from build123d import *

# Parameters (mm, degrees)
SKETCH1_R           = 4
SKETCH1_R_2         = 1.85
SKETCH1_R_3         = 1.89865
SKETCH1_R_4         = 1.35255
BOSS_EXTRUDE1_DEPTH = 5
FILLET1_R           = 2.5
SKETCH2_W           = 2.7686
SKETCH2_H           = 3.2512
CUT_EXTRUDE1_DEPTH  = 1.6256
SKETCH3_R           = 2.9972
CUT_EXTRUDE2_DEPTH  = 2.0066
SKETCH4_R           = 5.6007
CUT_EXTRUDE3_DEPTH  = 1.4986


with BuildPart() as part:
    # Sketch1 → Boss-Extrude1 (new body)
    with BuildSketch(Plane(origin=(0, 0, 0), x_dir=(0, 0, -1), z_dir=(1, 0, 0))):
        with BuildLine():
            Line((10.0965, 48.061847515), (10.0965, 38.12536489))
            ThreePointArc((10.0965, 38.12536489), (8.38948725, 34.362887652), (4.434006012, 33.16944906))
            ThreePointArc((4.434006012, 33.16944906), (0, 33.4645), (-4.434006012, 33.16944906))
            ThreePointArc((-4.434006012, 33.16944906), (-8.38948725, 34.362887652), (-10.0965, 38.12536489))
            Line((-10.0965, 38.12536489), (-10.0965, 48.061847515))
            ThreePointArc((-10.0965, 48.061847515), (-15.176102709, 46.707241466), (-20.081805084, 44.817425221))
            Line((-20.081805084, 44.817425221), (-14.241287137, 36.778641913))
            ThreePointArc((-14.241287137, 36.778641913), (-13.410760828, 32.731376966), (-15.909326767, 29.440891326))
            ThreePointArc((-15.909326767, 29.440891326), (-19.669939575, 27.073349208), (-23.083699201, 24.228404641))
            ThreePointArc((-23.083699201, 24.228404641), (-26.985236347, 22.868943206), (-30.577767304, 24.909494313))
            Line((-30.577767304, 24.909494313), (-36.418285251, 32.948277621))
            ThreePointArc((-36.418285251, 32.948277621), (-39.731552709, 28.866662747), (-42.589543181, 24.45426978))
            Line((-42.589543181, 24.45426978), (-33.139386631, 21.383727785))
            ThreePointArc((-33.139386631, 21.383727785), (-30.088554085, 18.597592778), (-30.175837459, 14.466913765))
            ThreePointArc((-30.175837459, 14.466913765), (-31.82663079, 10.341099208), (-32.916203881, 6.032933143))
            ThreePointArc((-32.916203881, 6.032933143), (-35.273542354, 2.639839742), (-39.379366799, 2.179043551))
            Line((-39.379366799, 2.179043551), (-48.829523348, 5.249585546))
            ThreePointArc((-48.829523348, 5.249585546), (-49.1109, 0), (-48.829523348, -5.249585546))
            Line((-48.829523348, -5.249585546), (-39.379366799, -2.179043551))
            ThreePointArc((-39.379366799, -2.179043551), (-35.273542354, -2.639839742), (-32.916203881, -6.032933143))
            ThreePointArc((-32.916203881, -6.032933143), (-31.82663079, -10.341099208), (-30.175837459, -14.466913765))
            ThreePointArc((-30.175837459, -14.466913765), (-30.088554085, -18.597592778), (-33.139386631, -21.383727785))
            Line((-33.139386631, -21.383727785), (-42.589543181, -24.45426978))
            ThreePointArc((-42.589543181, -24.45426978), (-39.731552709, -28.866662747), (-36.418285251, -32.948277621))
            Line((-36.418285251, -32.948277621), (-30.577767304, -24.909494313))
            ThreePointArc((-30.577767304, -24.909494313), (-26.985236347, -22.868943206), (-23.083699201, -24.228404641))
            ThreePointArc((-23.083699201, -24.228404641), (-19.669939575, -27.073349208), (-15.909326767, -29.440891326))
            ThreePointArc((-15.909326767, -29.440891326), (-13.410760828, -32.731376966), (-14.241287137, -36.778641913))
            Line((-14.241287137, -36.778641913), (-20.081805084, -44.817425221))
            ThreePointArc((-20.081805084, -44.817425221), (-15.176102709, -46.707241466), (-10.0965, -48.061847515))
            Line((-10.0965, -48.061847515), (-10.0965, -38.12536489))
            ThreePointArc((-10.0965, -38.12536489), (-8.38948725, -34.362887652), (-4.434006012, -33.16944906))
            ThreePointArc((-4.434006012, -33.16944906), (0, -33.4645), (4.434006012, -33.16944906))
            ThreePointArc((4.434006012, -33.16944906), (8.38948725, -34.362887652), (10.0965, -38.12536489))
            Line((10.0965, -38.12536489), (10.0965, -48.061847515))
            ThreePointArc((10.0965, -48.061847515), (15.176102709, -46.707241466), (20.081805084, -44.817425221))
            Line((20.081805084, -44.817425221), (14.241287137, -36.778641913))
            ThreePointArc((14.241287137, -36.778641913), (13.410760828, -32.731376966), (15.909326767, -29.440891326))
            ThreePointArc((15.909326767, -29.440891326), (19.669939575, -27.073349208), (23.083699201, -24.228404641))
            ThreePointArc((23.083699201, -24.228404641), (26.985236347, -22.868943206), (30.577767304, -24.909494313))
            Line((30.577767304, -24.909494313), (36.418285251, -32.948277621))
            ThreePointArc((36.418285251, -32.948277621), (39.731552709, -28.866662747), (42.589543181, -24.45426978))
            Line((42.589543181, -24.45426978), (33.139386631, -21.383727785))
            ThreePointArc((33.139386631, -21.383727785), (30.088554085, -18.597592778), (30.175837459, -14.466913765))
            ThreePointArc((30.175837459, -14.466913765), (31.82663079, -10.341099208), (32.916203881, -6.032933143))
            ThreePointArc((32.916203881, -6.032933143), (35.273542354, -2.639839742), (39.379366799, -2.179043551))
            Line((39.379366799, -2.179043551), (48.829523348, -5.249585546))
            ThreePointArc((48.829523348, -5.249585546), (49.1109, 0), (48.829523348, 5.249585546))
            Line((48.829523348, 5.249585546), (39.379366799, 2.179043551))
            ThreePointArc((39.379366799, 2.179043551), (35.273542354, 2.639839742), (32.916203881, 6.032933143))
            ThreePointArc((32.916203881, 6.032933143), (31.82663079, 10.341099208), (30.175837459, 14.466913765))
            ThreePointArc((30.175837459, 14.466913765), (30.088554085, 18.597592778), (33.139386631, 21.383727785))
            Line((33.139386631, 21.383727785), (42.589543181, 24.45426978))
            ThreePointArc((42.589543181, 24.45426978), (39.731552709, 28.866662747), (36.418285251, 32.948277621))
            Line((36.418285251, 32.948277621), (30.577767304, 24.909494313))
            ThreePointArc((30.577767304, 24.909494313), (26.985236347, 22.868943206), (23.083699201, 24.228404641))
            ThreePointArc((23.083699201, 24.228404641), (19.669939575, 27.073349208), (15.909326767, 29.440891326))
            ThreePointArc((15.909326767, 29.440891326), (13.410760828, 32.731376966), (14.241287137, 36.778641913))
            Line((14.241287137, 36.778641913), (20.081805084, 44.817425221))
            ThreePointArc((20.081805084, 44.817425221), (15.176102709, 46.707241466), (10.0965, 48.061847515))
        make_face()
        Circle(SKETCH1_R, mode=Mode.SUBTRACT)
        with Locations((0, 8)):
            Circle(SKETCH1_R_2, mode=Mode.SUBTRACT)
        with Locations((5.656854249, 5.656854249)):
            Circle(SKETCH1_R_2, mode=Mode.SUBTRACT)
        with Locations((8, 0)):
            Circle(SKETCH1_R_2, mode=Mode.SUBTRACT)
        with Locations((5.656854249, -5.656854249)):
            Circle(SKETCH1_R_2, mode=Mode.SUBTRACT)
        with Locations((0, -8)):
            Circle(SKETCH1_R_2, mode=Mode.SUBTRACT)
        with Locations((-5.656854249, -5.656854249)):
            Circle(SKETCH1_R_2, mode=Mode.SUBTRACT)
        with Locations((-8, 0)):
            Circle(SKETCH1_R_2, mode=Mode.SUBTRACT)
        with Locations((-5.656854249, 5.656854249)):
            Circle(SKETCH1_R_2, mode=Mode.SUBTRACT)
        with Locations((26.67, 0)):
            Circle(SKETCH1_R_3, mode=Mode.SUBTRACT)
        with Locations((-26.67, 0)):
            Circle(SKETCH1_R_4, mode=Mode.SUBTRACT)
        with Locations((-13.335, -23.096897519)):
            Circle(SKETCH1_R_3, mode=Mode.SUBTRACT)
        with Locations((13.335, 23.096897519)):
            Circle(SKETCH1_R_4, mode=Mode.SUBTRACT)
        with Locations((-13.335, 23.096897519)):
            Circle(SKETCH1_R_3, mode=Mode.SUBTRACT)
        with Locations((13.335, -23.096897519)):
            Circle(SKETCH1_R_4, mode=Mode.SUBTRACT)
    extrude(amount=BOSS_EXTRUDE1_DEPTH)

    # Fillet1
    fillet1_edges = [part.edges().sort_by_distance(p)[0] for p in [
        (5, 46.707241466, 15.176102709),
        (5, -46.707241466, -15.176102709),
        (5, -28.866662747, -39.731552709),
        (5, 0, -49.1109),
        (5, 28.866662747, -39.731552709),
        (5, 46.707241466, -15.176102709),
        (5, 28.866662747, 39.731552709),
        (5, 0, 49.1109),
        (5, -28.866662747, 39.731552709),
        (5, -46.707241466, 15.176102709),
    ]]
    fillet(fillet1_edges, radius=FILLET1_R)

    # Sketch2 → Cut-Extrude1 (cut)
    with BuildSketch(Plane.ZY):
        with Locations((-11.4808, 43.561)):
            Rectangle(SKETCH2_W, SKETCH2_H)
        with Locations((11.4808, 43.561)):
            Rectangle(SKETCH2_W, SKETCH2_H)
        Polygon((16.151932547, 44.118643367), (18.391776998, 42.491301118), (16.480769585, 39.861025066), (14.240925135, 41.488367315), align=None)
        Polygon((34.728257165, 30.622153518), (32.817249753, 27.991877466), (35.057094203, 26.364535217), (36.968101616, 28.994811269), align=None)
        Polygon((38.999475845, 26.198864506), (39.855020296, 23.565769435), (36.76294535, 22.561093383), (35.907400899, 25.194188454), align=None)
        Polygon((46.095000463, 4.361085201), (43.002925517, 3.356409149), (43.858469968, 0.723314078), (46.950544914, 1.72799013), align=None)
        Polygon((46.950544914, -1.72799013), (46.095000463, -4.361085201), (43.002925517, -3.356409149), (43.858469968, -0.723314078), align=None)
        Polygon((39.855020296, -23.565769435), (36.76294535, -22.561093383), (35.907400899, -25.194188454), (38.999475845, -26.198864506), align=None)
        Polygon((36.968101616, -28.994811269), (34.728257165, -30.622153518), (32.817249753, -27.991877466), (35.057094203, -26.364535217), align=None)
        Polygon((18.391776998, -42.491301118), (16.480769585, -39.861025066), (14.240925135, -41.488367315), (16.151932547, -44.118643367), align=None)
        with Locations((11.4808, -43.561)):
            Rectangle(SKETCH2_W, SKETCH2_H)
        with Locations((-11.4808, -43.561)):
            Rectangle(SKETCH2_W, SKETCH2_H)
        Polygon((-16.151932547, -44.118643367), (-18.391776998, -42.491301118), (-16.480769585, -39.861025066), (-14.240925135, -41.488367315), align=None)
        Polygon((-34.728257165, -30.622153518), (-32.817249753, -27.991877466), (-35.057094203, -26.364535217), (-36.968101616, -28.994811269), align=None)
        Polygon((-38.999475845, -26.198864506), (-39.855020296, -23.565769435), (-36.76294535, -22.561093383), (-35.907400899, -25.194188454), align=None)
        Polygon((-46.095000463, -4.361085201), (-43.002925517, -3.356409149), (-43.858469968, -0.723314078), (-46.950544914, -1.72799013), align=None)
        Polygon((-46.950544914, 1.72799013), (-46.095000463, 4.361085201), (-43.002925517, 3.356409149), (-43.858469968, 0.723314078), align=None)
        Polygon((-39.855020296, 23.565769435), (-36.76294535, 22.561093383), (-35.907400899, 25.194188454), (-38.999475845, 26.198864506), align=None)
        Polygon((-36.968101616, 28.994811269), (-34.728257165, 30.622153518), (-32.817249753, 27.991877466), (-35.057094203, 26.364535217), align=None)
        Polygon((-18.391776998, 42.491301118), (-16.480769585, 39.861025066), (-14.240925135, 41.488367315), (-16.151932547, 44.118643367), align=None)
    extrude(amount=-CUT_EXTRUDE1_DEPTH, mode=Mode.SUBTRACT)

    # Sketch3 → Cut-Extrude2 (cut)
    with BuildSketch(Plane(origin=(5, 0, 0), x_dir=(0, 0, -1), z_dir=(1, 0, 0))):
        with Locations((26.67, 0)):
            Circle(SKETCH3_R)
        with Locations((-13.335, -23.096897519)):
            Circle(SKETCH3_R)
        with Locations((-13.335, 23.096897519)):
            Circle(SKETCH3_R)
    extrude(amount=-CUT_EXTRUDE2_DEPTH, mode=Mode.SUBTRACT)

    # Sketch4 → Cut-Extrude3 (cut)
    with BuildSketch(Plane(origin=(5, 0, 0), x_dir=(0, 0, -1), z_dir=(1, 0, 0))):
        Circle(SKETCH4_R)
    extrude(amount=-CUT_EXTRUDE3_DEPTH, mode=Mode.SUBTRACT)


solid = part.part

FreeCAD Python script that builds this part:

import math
import FreeCAD as App
import Part
import Sketcher

V = App.Vector
Q = App.Units.Quantity


def edges_at(feature, points):
    """Names of the edges that pass closest to the given points."""
    edges = feature.Shape.Edges
    near = lambda p: min(range(len(edges)), key=lambda i: edges[i].distToShape(Part.Vertex(*p))[0])
    return sorted({f"Edge{near(p) + 1}" for p in points})

doc = App.newDocument("Part")
body = doc.addObject("PartDesign::Body", "Body")

sketch1 = doc.addObject("Sketcher::SketchObject", "Sketch")
body.addObject(sketch1)
sketch1.AttachmentSupport = (doc.YZ_Plane, [""])
sketch1.MapMode = "FlatFace"
sketch1.addGeometry([
    Part.LineSegment(V(48.1, -10.1, 0), V(38.1, -10.1, 0)),
    Part.ArcOfCircle(Part.Circle(V(38.1, -5.1, 0), V(0, 0, 1), 5), math.radians(172), math.radians(270)),
    Part.ArcOfCircle(Part.Circle(V(0, 0, 0), V(0, 0, 1), 33.5), math.radians(-7.61), math.radians(7.61)),
    Part.ArcOfCircle(Part.Circle(V(38.1, 5.1, 0), V(0, 0, 1), 5), math.radians(90), math.radians(188)),
    Part.LineSegment(V(38.1, 10.1, 0), V(48.1, 10.1, 0)),
    Part.ArcOfCircle(Part.Circle(V(0, 0, 0), V(0, 0, 1), 49.1), math.radians(11.86), math.radians(24.14)),
    Part.LineSegment(V(44.8, 20.1, 0), V(36.8, 14.2, 0)),
    Part.ArcOfCircle(Part.Circle(V(33.8, 18.3, 0), V(0, 0, 1), 5), math.radians(-152), math.radians(-54)),
    Part.ArcOfCircle(Part.Circle(V(0, 0, 0), V(0, 0, 1), 33.5), math.radians(28.39), math.radians(43.61)),
    Part.ArcOfCircle(Part.Circle(V(27.8, 26.5, 0), V(0, 0, 1), 5), math.radians(126), math.radians(224)),
    Part.LineSegment(V(24.9, 30.6, 0), V(32.9, 36.4, 0)),
    Part.ArcOfCircle(Part.Circle(V(0, 0, 0), V(0, 0, 1), 49.1), math.radians(47.86), math.radians(60.14)),
    Part.LineSegment(V(24.5, 42.6, 0), V(21.4, 33.1, 0)),
    Part.ArcOfCircle(Part.Circle(V(16.6, 34.7, 0), V(0, 0, 1), 5), math.radians(-116), math.radians(-18)),
    Part.ArcOfCircle(Part.Circle(V(0, 0, 0), V(0, 0, 1), 33.5), math.radians(64.39), math.radians(79.61)),
    Part.ArcOfCircle(Part.Circle(V(6.9, 37.8, 0), V(0, 0, 1), 5), math.radians(162), math.radians(260)),
    Part.LineSegment(V(2.2, 39.4, 0), V(5.2, 48.8, 0)),
    Part.ArcOfCircle(Part.Circle(V(0, 0, 0), V(0, 0, 1), 49.1), math.radians(83.86), math.radians(96.14)),
    Part.LineSegment(V(-5.2, 48.8, 0), V(-2.2, 39.4, 0)),
    Part.ArcOfCircle(Part.Circle(V(-6.9, 37.8, 0), V(0, 0, 1), 5), math.radians(-80), math.radians(18)),
    Part.ArcOfCircle(Part.Circle(V(0, 0, 0), V(0, 0, 1), 33.5), math.radians(100.39), math.radians(115.61)),
    Part.ArcOfCircle(Part.Circle(V(-16.6, 34.7, 0), V(0, 0, 1), 5), math.radians(-162), math.radians(-64)),
    Part.LineSegment(V(-21.4, 33.1, 0), V(-24.5, 42.6, 0)),
    Part.ArcOfCircle(Part.Circle(V(0, 0, 0), V(0, 0, 1), 49.1), math.radians(119.86), math.radians(132.14)),
    Part.LineSegment(V(-32.9, 36.4, 0), V(-24.9, 30.6, 0)),
    Part.ArcOfCircle(Part.Circle(V(-27.8, 26.5, 0), V(0, 0, 1), 5), math.radians(-44), math.radians(54)),
    Part.ArcOfCircle(Part.Circle(V(0, 0, 0), V(0, 0, 1), 33.5), math.radians(136.39), math.radians(151.61)),
    Part.ArcOfCircle(Part.Circle(V(-33.8, 18.3, 0), V(0, 0, 1), 5), math.radians(-126), math.radians(-28)),
    Part.LineSegment(V(-36.8, 14.2, 0), V(-44.8, 20.1, 0)),
    Part.ArcOfCircle(Part.Circle(V(0, 0, 0), V(0, 0, 1), 49.1), math.radians(155.86), math.radians(168.14)),
    Part.LineSegment(V(-48.1, 10.1, 0), V(-38.1, 10.1, 0)),
    Part.ArcOfCircle(Part.Circle(V(-38.1, 5.1, 0), V(0, 0, 1), 5), math.radians(-8), math.radians(90)),
    Part.ArcOfCircle(Part.Circle(V(0, 0, 0), V(0, 0, 1), 33.5), math.radians(172.39), math.radians(187.61)),
    Part.ArcOfCircle(Part.Circle(V(-38.1, -5.1, 0), V(0, 0, 1), 5), math.radians(-90), math.radians(8)),
    Part.LineSegment(V(-38.1, -10.1, 0), V(-48.1, -10.1, 0)),
    Part.ArcOfCircle(Part.Circle(V(0, 0, 0), V(0, 0, 1), 49.1), math.radians(-168.14), math.radians(-155.86)),
    Part.LineSegment(V(-44.8, -20.1, 0), V(-36.8, -14.2, 0)),
    Part.ArcOfCircle(Part.Circle(V(-33.8, -18.3, 0), V(0, 0, 1), 5), math.radians(28), math.radians(126)),
    Part.ArcOfCircle(Part.Circle(V(0, 0, 0), V(0, 0, 1), 33.5), math.radians(-151.61), math.radians(-136.39)),
    Part.ArcOfCircle(Part.Circle(V(-27.8, -26.5, 0), V(0, 0, 1), 5), math.radians(-54), math.radians(44)),
    Part.LineSegment(V(-24.9, -30.6, 0), V(-32.9, -36.4, 0)),
    Part.ArcOfCircle(Part.Circle(V(0, 0, 0), V(0, 0, 1), 49.1), math.radians(-132.14), math.radians(-119.86)),
    Part.LineSegment(V(-24.5, -42.6, 0), V(-21.4, -33.1, 0)),
    Part.ArcOfCircle(Part.Circle(V(-16.6, -34.7, 0), V(0, 0, 1), 5), math.radians(64), math.radians(162)),
    Part.ArcOfCircle(Part.Circle(V(0, 0, 0), V(0, 0, 1), 33.5), math.radians(-115.61), math.radians(-100.39)),
    Part.ArcOfCircle(Part.Circle(V(-6.9, -37.8, 0), V(0, 0, 1), 5), math.radians(-18), math.radians(80)),
    Part.LineSegment(V(-2.2, -39.4, 0), V(-5.2, -48.8, 0)),
    Part.ArcOfCircle(Part.Circle(V(0, 0, 0), V(0, 0, 1), 49.1), math.radians(-96.14), math.radians(-83.86)),
    Part.LineSegment(V(5.2, -48.8, 0), V(2.2, -39.4, 0)),
    Part.ArcOfCircle(Part.Circle(V(6.9, -37.8, 0), V(0, 0, 1), 5), math.radians(100), math.radians(198)),
    Part.ArcOfCircle(Part.Circle(V(0, 0, 0), V(0, 0, 1), 33.5), math.radians(-79.61), math.radians(-64.39)),
    Part.ArcOfCircle(Part.Circle(V(16.6, -34.7, 0), V(0, 0, 1), 5), math.radians(18), math.radians(116)),
    Part.LineSegment(V(21.4, -33.1, 0), V(24.5, -42.6, 0)),
    Part.ArcOfCircle(Part.Circle(V(0, 0, 0), V(0, 0, 1), 49.1), math.radians(-60.14), math.radians(-47.86)),
    Part.LineSegment(V(32.9, -36.4, 0), V(24.9, -30.6, 0)),
    Part.ArcOfCircle(Part.Circle(V(27.8, -26.5, 0), V(0, 0, 1), 5), math.radians(136), math.radians(234)),
    Part.ArcOfCircle(Part.Circle(V(0, 0, 0), V(0, 0, 1), 33.5), math.radians(-43.61), math.radians(-28.39)),
    Part.ArcOfCircle(Part.Circle(V(33.8, -18.3, 0), V(0, 0, 1), 5), math.radians(54), math.radians(152)),
    Part.LineSegment(V(36.8, -14.2, 0), V(44.8, -20.1, 0)),
    Part.ArcOfCircle(Part.Circle(V(0, 0, 0), V(0, 0, 1), 49.1), math.radians(-24.14), math.radians(-11.86)),
    Part.Circle(V(-23.1, 13.3, 0), V(0, 0, 1), 1.9),
    Part.Circle(V(-8, 0, 0), V(0, 0, 1), 1.9),
    Part.Circle(V(-5.7, 5.7, 0), V(0, 0, 1), 1.9),
    Part.Circle(V(-23.1, -13.3, 0), V(0, 0, 1), 1.4),
    Part.Circle(V(-5.7, -5.7, 0), V(0, 0, 1), 1.9),
    Part.Circle(V(0, 26.7, 0), V(0, 0, 1), 1.4),
    Part.Circle(V(0, 8, 0), V(0, 0, 1), 1.9),
    Part.Circle(V(0, 0, 0), V(0, 0, 1), 4),
    Part.Circle(V(5.7, 5.7, 0), V(0, 0, 1), 1.9),
    Part.Circle(V(8, 0, 0), V(0, 0, 1), 1.9),
    Part.Circle(V(23.1, 13.3, 0), V(0, 0, 1), 1.9),
    Part.Circle(V(5.7, -5.7, 0), V(0, 0, 1), 1.9),
    Part.Circle(V(0, -8, 0), V(0, 0, 1), 1.9),
    Part.Circle(V(0, -26.7, 0), V(0, 0, 1), 1.9),
    Part.Circle(V(23.1, -13.3, 0), V(0, 0, 1), 1.4),
], False)
sketch1.addConstraint([
    Sketcher.Constraint("Tangent", 0, 2, 1, 2),
    Sketcher.Constraint("Tangent", 1, 1, 2, 1),
    Sketcher.Constraint("Tangent", 2, 2, 3, 2),
    Sketcher.Constraint("Tangent", 3, 1, 4, 1),
    Sketcher.Constraint("Coincident", 4, 2, 5, 1),
    Sketcher.Constraint("Coincident", 5, 2, 6, 1),
    Sketcher.Constraint("Tangent", 6, 2, 7, 2),
    Sketcher.Constraint("Tangent", 7, 1, 8, 1),
    Sketcher.Constraint("Tangent", 8, 2, 9, 2),
    Sketcher.Constraint("Tangent", 9, 1, 10, 1),
    Sketcher.Constraint("Coincident", 10, 2, 11, 1),
    Sketcher.Constraint("Coincident", 11, 2, 12, 1),
    Sketcher.Constraint("Tangent", 12, 2, 13, 2),
    Sketcher.Constraint("Tangent", 13, 1, 14, 1),
    Sketcher.Constraint("Tangent", 14, 2, 15, 2),
    Sketcher.Constraint("Tangent", 15, 1, 16, 1),
    Sketcher.Constraint("Coincident", 16, 2, 17, 1),
    Sketcher.Constraint("Coincident", 17, 2, 18, 1),
    Sketcher.Constraint("Tangent", 18, 2, 19, 2),
    Sketcher.Constraint("Tangent", 19, 1, 20, 1),
    Sketcher.Constraint("Tangent", 20, 2, 21, 2),
    Sketcher.Constraint("Tangent", 21, 1, 22, 1),
    Sketcher.Constraint("Coincident", 22, 2, 23, 1),
    Sketcher.Constraint("Coincident", 23, 2, 24, 1),
    Sketcher.Constraint("Tangent", 24, 2, 25, 2),
    Sketcher.Constraint("Tangent", 25, 1, 26, 1),
    Sketcher.Constraint("Tangent", 26, 2, 27, 2),
    Sketcher.Constraint("Tangent", 27, 1, 28, 1),
    Sketcher.Constraint("Coincident", 28, 2, 29, 1),
    Sketcher.Constraint("Coincident", 29, 2, 30, 1),
    Sketcher.Constraint("Tangent", 30, 2, 31, 2),
    Sketcher.Constraint("Tangent", 31, 1, 32, 1),
    Sketcher.Constraint("Tangent", 32, 2, 33, 2),
    Sketcher.Constraint("Tangent", 33, 1, 34, 1),
    Sketcher.Constraint("Coincident", 34, 2, 35, 1),
    Sketcher.Constraint("Coincident", 35, 2, 36, 1),
    Sketcher.Constraint("Tangent", 36, 2, 37, 2),
    Sketcher.Constraint("Tangent", 37, 1, 38, 1),
    Sketcher.Constraint("Tangent", 38, 2, 39, 2),
    Sketcher.Constraint("Tangent", 39, 1, 40, 1),
    Sketcher.Constraint("Coincident", 40, 2, 41, 1),
    Sketcher.Constraint("Coincident", 41, 2, 42, 1),
    Sketcher.Constraint("Tangent", 42, 2, 43, 2),
    Sketcher.Constraint("Tangent", 43, 1, 44, 1),
    Sketcher.Constraint("Tangent", 44, 2, 45, 2),
    Sketcher.Constraint("Tangent", 45, 1, 46, 1),
    Sketcher.Constraint("Coincident", 46, 2, 47, 1),
    Sketcher.Constraint("Coincident", 47, 2, 48, 1),
    Sketcher.Constraint("Tangent", 48, 2, 49, 2),
    Sketcher.Constraint("Tangent", 49, 1, 50, 1),
    Sketcher.Constraint("Tangent", 50, 2, 51, 2),
    Sketcher.Constraint("Tangent", 51, 1, 52, 1),
    Sketcher.Constraint("Coincident", 52, 2, 53, 1),
    Sketcher.Constraint("Coincident", 53, 2, 54, 1),
    Sketcher.Constraint("Tangent", 54, 2, 55, 2),
    Sketcher.Constraint("Tangent", 55, 1, 56, 1),
    Sketcher.Constraint("Tangent", 56, 2, 57, 2),
    Sketcher.Constraint("Tangent", 57, 1, 58, 1),
    Sketcher.Constraint("Coincident", 58, 2, 59, 1),
    Sketcher.Constraint("Coincident", 59, 2, 0, 1),
    Sketcher.Constraint("Horizontal", 0),
    Sketcher.Constraint("Horizontal", 4),
    Sketcher.Constraint("Horizontal", 30),
    Sketcher.Constraint("Horizontal", 34),
    Sketcher.Constraint("Coincident", 2, 3, -1, 1),
    Sketcher.Constraint("Coincident", 5, 3, -1, 1),
    Sketcher.Constraint("Coincident", 8, 3, -1, 1),
    Sketcher.Constraint("Coincident", 11, 3, -1, 1),
    Sketcher.Constraint("Coincident", 14, 3, -1, 1),
    Sketcher.Constraint("Coincident", 17, 3, -1, 1),
    Sketcher.Constraint("Coincident", 20, 3, -1, 1),
    Sketcher.Constraint("Coincident", 23, 3, -1, 1),
    Sketcher.Constraint("Coincident", 26, 3, -1, 1),
    Sketcher.Constraint("Coincident", 29, 3, -1, 1),
    Sketcher.Constraint("Coincident", 32, 3, -1, 1),
    Sketcher.Constraint("Coincident", 35, 3, -1, 1),
    Sketcher.Constraint("Coincident", 38, 3, -1, 1),
    Sketcher.Constraint("Coincident", 41, 3, -1, 1),
    Sketcher.Constraint("Coincident", 44, 3, -1, 1),
    Sketcher.Constraint("Coincident", 47, 3, -1, 1),
    Sketcher.Constraint("Coincident", 50, 3, -1, 1),
    Sketcher.Constraint("Coincident", 53, 3, -1, 1),
    Sketcher.Constraint("Coincident", 56, 3, -1, 1),
    Sketcher.Constraint("Coincident", 59, 3, -1, 1),
    Sketcher.Constraint("Coincident", 67, 3, -1, 1),
    Sketcher.Constraint("Equal", 1, 3),
    Sketcher.Constraint("Equal", 3, 7),
    Sketcher.Constraint("Equal", 2, 8),
    Sketcher.Constraint("Equal", 7, 9),
    Sketcher.Constraint("Equal", 5, 11),
    Sketcher.Constraint("Equal", 9, 13),
    Sketcher.Constraint("Equal", 8, 14),
    Sketcher.Constraint("Equal", 13, 15),
    Sketcher.Constraint("Equal", 11, 17),
    Sketcher.Constraint("Equal", 15, 19),
    Sketcher.Constraint("Equal", 14, 20),
    Sketcher.Constraint("Equal", 19, 21),
    Sketcher.Constraint("Equal", 17, 23),
    Sketcher.Constraint("Equal", 21, 25),
    Sketcher.Constraint("Equal", 20, 26),
    Sketcher.Constraint("Equal", 25, 27),
    Sketcher.Constraint("Equal", 23, 29),
    Sketcher.Constraint("Equal", 27, 31),
    Sketcher.Constraint("Equal", 26, 32),
    Sketcher.Constraint("Equal", 31, 33),
    Sketcher.Constraint("Equal", 29, 35),
    Sketcher.Constraint("Equal", 33, 37),
    Sketcher.Constraint("Equal", 32, 38),
    Sketcher.Constraint("Equal", 37, 39),
    Sketcher.Constraint("Equal", 35, 41),
    Sketcher.Constraint("Equal", 39, 43),
    Sketcher.Constraint("Equal", 38, 44),
    Sketcher.Constraint("Equal", 43, 45),
    Sketcher.Constraint("Equal", 41, 47),
    Sketcher.Constraint("Equal", 45, 49),
    Sketcher.Constraint("Equal", 44, 50),
    Sketcher.Constraint("Equal", 49, 51),
    Sketcher.Constraint("Equal", 47, 53),
    Sketcher.Constraint("Equal", 51, 55),
    Sketcher.Constraint("Equal", 50, 56),
    Sketcher.Constraint("Equal", 55, 57),
    Sketcher.Constraint("Equal", 53, 59),
    Sketcher.Constraint("Equal", 61, 62),
    Sketcher.Constraint("Equal", 62, 64),
    Sketcher.Constraint("Equal", 63, 65),
    Sketcher.Constraint("Equal", 64, 66),
    Sketcher.Constraint("Equal", 66, 68),
    Sketcher.Constraint("Equal", 68, 69),
    Sketcher.Constraint("Equal", 60, 70),
    Sketcher.Constraint("Equal", 69, 71),
    Sketcher.Constraint("Equal", 71, 72),
    Sketcher.Constraint("Equal", 70, 73),
    Sketcher.Constraint("Equal", 65, 74),
    Sketcher.Constraint("Symmetric", 64, 3, 68, 3, -1, 1),
    Sketcher.Constraint("Symmetric", 61, 3, 69, 3, -1, 1),
    Sketcher.Constraint("Symmetric", 63, 3, 70, 3, -1, 1),
    Sketcher.Constraint("Symmetric", 62, 3, 71, 3, -1, 1),
    Sketcher.Constraint("Symmetric", 66, 3, 72, 3, -1, 1),
    Sketcher.Constraint("Symmetric", 65, 3, 73, 3, -1, 1),
    Sketcher.Constraint("Symmetric", 60, 3, 74, 3, -1, 1),
    Sketcher.Constraint("Symmetric", 6, 2, 36, 2, -1, 1),
    Sketcher.Constraint("Symmetric", 9, 1, 39, 1, -1, 1),
    Sketcher.Constraint("Symmetric", 12, 2, 42, 2, -1, 1),
    Sketcher.Constraint("Symmetric", 15, 1, 45, 1, -1, 1),
    Sketcher.Constraint("Symmetric", 18, 2, 48, 2, -1, 1),
    Sketcher.Constraint("Symmetric", 21, 1, 51, 1, -1, 1),
    Sketcher.Constraint("Symmetric", 24, 2, 54, 2, -1, 1),
    Sketcher.Constraint("Symmetric", 27, 1, 57, 1, -1, 1),
    Sketcher.Constraint("Symmetric", 62, 3, 68, 3, -2),
    Sketcher.Constraint("Symmetric", 60, 3, 70, 3, -2),
    Sketcher.Constraint("Symmetric", 15, 1, 18, 2, -2),
    Sketcher.Constraint("Symmetric", 12, 2, 21, 1, -2),
    Sketcher.Constraint("Symmetric", 9, 1, 24, 2, -2),
    Sketcher.Constraint("Symmetric", 6, 2, 27, 1, -2),
    Sketcher.Constraint("PointOnObject", 61, 3, -1),
    Sketcher.Constraint("PointOnObject", 65, 3, -2),
    Sketcher.Constraint("PointOnObject", 66, 3, -2),
    Sketcher.Constraint("Parallel", 6, 10),
    Sketcher.Constraint("Parallel", 12, 16),
    Sketcher.Constraint("Horizontal", 3, 3, 31, 3),
    Sketcher.Constraint("Horizontal", 1, 3, 33, 3),
    Sketcher.Constraint("Vertical", 1, 3, 3, 3),
    Sketcher.Constraint("Equal", 6, 10),
    Sketcher.Constraint("Equal", 10, 12),
    Sketcher.Constraint("Equal", 12, 16),
    Sketcher.Constraint("Angle", 6, Q("-144 deg")),
    Sketcher.Constraint("Angle", 12, Q("-108 deg")),
    Sketcher.Constraint("Diameter", 60, Q("0.1495 in")),
    Sketcher.Constraint("Diameter", 63, Q("0.1065 in")),
    Sketcher.Constraint("Radius", 2, Q("1.3175 in")),
    Sketcher.Constraint("Radius", 5, Q("1.9335 in")),
    Sketcher.Constraint("Diameter", 61, Q("3.7 mm")),
    Sketcher.Constraint("Diameter", 67, Q("8 mm")),
    Sketcher.Constraint("DistanceY", -1, 1, 65, 3, Q("1.05 in")),
    Sketcher.Constraint("Radius", 1, Q("5 mm")),
    Sketcher.Constraint("DistanceX", 0, 2, 0, 1, Q("0.3912001 in")),
    Sketcher.Constraint("DistanceY", -1, 1, 60, 3, Q("0.525 in")),
    Sketcher.Constraint("Distance", 6, Q("0.3912001 in")),
    Sketcher.Constraint("DistanceX", 61, 3, -1, 1, Q("8 mm")),
    Sketcher.Constraint("DistanceY", -1, 1, 66, 3, Q("8 mm")),
    Sketcher.Constraint("DistanceX", 60, 3, -1, 1, Q("23.096898 mm")),
    Sketcher.Constraint("DistanceX", 62, 3, -1, 1, Q("5.656854 mm")),
    Sketcher.Constraint("DistanceY", -1, 1, 62, 3, Q("5.656854 mm")),
])
pad1 = doc.addObject("PartDesign::Pad", "Pad")
body.addObject(pad1)
pad1.Profile = sketch1
pad1.Length = 5
doc.recompute()

fillet = doc.addObject("PartDesign::Fillet", "Fillet")
body.addObject(fillet)
fillet.Base = (pad1, edges_at(pad1, [
    (5, 46.707, 15.176),
    (5, -46.707, -15.176),
    (5, -28.867, -39.732),
    (5, 0, -49.111),
    (5, 28.867, -39.732),
    (5, 46.707, -15.176),
    (5, 28.867, 39.732),
    (5, 0, 49.111),
    (5, -28.867, 39.732),
    (5, -46.707, 15.176),
]))
fillet.Radius = 2.5

sketch2 = doc.addObject("Sketcher::SketchObject", "Sketch001")
body.addObject(sketch2)
sketch2.AttachmentSupport = (doc.YZ_Plane, [""])
sketch2.MapMode = "FlatFace"
sketch2.addGeometry([
    Part.LineSegment(V(45.2, -12.9, 0), V(41.9, -12.9, 0)),
    Part.LineSegment(V(41.9, -12.9, 0), V(41.9, -10.1, 0)),
    Part.LineSegment(V(41.9, -10.1, 0), V(45.2, -10.1, 0)),
    Part.LineSegment(V(45.2, -10.1, 0), V(45.2, -12.9, 0)),
    Part.LineSegment(V(45.2, 10.1, 0), V(41.9, 10.1, 0)),
    Part.LineSegment(V(41.9, 10.1, 0), V(41.9, 12.9, 0)),
    Part.LineSegment(V(41.9, 12.9, 0), V(45.2, 12.9, 0)),
    Part.LineSegment(V(45.2, 12.9, 0), V(45.2, 10.1, 0)),
    Part.LineSegment(V(42.5, 18.4, 0), V(44.1, 16.2, 0)),
    Part.LineSegment(V(44.1, 16.2, 0), V(41.5, 14.2, 0)),
    Part.LineSegment(V(41.5, 14.2, 0), V(39.9, 16.5, 0)),
    Part.LineSegment(V(39.9, 16.5, 0), V(42.5, 18.4, 0)),
    Part.LineSegment(V(30.6, 34.7, 0), V(28, 32.8, 0)),
    Part.LineSegment(V(28, 32.8, 0), V(26.4, 35.1, 0)),
    Part.LineSegment(V(26.4, 35.1, 0), V(29, 37, 0)),
    Part.LineSegment(V(29, 37, 0), V(30.6, 34.7, 0)),
    Part.LineSegment(V(23.6, 39.9, 0), V(26.2, 39, 0)),
    Part.LineSegment(V(26.2, 39, 0), V(25.2, 35.9, 0)),
    Part.LineSegment(V(25.2, 35.9, 0), V(22.6, 36.8, 0)),
    Part.LineSegment(V(22.6, 36.8, 0), V(23.6, 39.9, 0)),
    Part.LineSegment(V(4.4, 46.1, 0), V(3.4, 43, 0)),
    Part.LineSegment(V(3.4, 43, 0), V(0.7, 43.9, 0)),
    Part.LineSegment(V(0.7, 43.9, 0), V(1.7, 47, 0)),
    Part.LineSegment(V(1.7, 47, 0), V(4.4, 46.1, 0)),
    Part.LineSegment(V(-4.4, 46.1, 0), V(-1.7, 47, 0)),
    Part.LineSegment(V(-1.7, 47, 0), V(-0.7, 43.9, 0)),
    Part.LineSegment(V(-0.7, 43.9, 0), V(-3.4, 43, 0)),
    Part.LineSegment(V(-3.4, 43, 0), V(-4.4, 46.1, 0)),
    Part.LineSegment(V(-23.6, 39.9, 0), V(-22.6, 36.8, 0)),
    Part.LineSegment(V(-22.6, 36.8, 0), V(-25.2, 35.9, 0)),
    Part.LineSegment(V(-25.2, 35.9, 0), V(-26.2, 39, 0)),
    Part.LineSegment(V(-26.2, 39, 0), V(-23.6, 39.9, 0)),
    Part.LineSegment(V(-30.6, 34.7, 0), V(-29, 37, 0)),
    Part.LineSegment(V(-29, 37, 0), V(-26.4, 35.1, 0)),
    Part.LineSegment(V(-26.4, 35.1, 0), V(-28, 32.8, 0)),
    Part.LineSegment(V(-28, 32.8, 0), V(-30.6, 34.7, 0)),
    Part.LineSegment(V(-42.5, 18.4, 0), V(-39.9, 16.5, 0)),
    Part.LineSegment(V(-39.9, 16.5, 0), V(-41.5, 14.2, 0)),
    Part.LineSegment(V(-41.5, 14.2, 0), V(-44.1, 16.2, 0)),
    Part.LineSegment(V(-44.1, 16.2, 0), V(-42.5, 18.4, 0)),
    Part.LineSegment(V(-41.9, 10.1, 0), V(-45.2, 10.1, 0)),
    Part.LineSegment(V(-45.2, 10.1, 0), V(-45.2, 12.9, 0)),
    Part.LineSegment(V(-45.2, 12.9, 0), V(-41.9, 12.9, 0)),
    Part.LineSegment(V(-41.9, 12.9, 0), V(-41.9, 10.1, 0)),
    Part.LineSegment(V(-41.9, -12.9, 0), V(-45.2, -12.9, 0)),
    Part.LineSegment(V(-45.2, -12.9, 0), V(-45.2, -10.1, 0)),
    Part.LineSegment(V(-45.2, -10.1, 0), V(-41.9, -10.1, 0)),
    Part.LineSegment(V(-41.9, -10.1, 0), V(-41.9, -12.9, 0)),
    Part.LineSegment(V(-42.5, -18.4, 0), V(-44.1, -16.2, 0)),
    Part.LineSegment(V(-44.1, -16.2, 0), V(-41.5, -14.2, 0)),
    Part.LineSegment(V(-41.5, -14.2, 0), V(-39.9, -16.5, 0)),
    Part.LineSegment(V(-39.9, -16.5, 0), V(-42.5, -18.4, 0)),
    Part.LineSegment(V(-30.6, -34.7, 0), V(-28, -32.8, 0)),
    Part.LineSegment(V(-28, -32.8, 0), V(-26.4, -35.1, 0)),
    Part.LineSegment(V(-26.4, -35.1, 0), V(-29, -37, 0)),
    Part.LineSegment(V(-29, -37, 0), V(-30.6, -34.7, 0)),
    Part.LineSegment(V(-23.6, -39.9, 0), V(-26.2, -39, 0)),
    Part.LineSegment(V(-26.2, -39, 0), V(-25.2, -35.9, 0)),
    Part.LineSegment(V(-25.2, -35.9, 0), V(-22.6, -36.8, 0)),
    Part.LineSegment(V(-22.6, -36.8, 0), V(-23.6, -39.9, 0)),
    Part.LineSegment(V(-4.4, -46.1, 0), V(-3.4, -43, 0)),
    Part.LineSegment(V(-3.4, -43, 0), V(-0.7, -43.9, 0)),
    Part.LineSegment(V(-0.7, -43.9, 0), V(-1.7, -47, 0)),
    Part.LineSegment(V(-1.7, -47, 0), V(-4.4, -46.1, 0)),
    Part.LineSegment(V(4.4, -46.1, 0), V(1.7, -47, 0)),
    Part.LineSegment(V(1.7, -47, 0), V(0.7, -43.9, 0)),
    Part.LineSegment(V(0.7, -43.9, 0), V(3.4, -43, 0)),
    Part.LineSegment(V(3.4, -43, 0), V(4.4, -46.1, 0)),
    Part.LineSegment(V(23.6, -39.9, 0), V(22.6, -36.8, 0)),
    Part.LineSegment(V(22.6, -36.8, 0), V(25.2, -35.9, 0)),
    Part.LineSegment(V(25.2, -35.9, 0), V(26.2, -39, 0)),
    Part.LineSegment(V(26.2, -39, 0), V(23.6, -39.9, 0)),
    Part.LineSegment(V(30.6, -34.7, 0), V(29, -37, 0)),
    Part.LineSegment(V(29, -37, 0), V(26.4, -35.1, 0)),
    Part.LineSegment(V(26.4, -35.1, 0), V(28, -32.8, 0)),
    Part.LineSegment(V(28, -32.8, 0), V(30.6, -34.7, 0)),
    Part.LineSegment(V(42.5, -18.4, 0), V(39.9, -16.5, 0)),
    Part.LineSegment(V(39.9, -16.5, 0), V(41.5, -14.2, 0)),
    Part.LineSegment(V(41.5, -14.2, 0), V(44.1, -16.2, 0)),
    Part.LineSegment(V(44.1, -16.2, 0), V(42.5, -18.4, 0)),
], False)
sketch2.addConstraint([
    Sketcher.Constraint("Coincident", 0, 2, 1, 1),
    Sketcher.Constraint("Coincident", 1, 2, 2, 1),
    Sketcher.Constraint("Coincident", 2, 2, 3, 1),
    Sketcher.Constraint("Coincident", 3, 2, 0, 1),
    Sketcher.Constraint("Coincident", 4, 2, 5, 1),
    Sketcher.Constraint("Coincident", 5, 2, 6, 1),
    Sketcher.Constraint("Coincident", 6, 2, 7, 1),
    Sketcher.Constraint("Coincident", 7, 2, 4, 1),
    Sketcher.Constraint("Coincident", 8, 2, 9, 1),
    Sketcher.Constraint("Coincident", 9, 2, 10, 1),
    Sketcher.Constraint("Coincident", 10, 2, 11, 1),
    Sketcher.Constraint("Coincident", 11, 2, 8, 1),
    Sketcher.Constraint("Coincident", 12, 2, 13, 1),
    Sketcher.Constraint("Coincident", 13, 2, 14, 1),
    Sketcher.Constraint("Coincident", 14, 2, 15, 1),
    Sketcher.Constraint("Coincident", 15, 2, 12, 1),
    Sketcher.Constraint("Coincident", 16, 2, 17, 1),
    Sketcher.Constraint("Coincident", 17, 2, 18, 1),
    Sketcher.Constraint("Coincident", 18, 2, 19, 1),
    Sketcher.Constraint("Coincident", 19, 2, 16, 1),
    Sketcher.Constraint("Coincident", 20, 2, 21, 1),
    Sketcher.Constraint("Coincident", 21, 2, 22, 1),
    Sketcher.Constraint("Coincident", 22, 2, 23, 1),
    Sketcher.Constraint("Coincident", 23, 2, 20, 1),
    Sketcher.Constraint("Coincident", 24, 2, 25, 1),
    Sketcher.Constraint("Coincident", 25, 2, 26, 1),
    Sketcher.Constraint("Coincident", 26, 2, 27, 1),
    Sketcher.Constraint("Coincident", 27, 2, 24, 1),
    Sketcher.Constraint("Coincident", 28, 2, 29, 1),
    Sketcher.Constraint("Coincident", 29, 2, 30, 1),
    Sketcher.Constraint("Coincident", 30, 2, 31, 1),
    Sketcher.Constraint("Coincident", 31, 2, 28, 1),
    Sketcher.Constraint("Coincident", 32, 2, 33, 1),
    Sketcher.Constraint("Coincident", 33, 2, 34, 1),
    Sketcher.Constraint("Coincident", 34, 2, 35, 1),
    Sketcher.Constraint("Coincident", 35, 2, 32, 1),
    Sketcher.Constraint("Coincident", 36, 2, 37, 1),
    Sketcher.Constraint("Coincident", 37, 2, 38, 1),
    Sketcher.Constraint("Coincident", 38, 2, 39, 1),
    Sketcher.Constraint("Coincident", 39, 2, 36, 1),
    Sketcher.Constraint("Coincident", 40, 2, 41, 1),
    Sketcher.Constraint("Coincident", 41, 2, 42, 1),
    Sketcher.Constraint("Coincident", 42, 2, 43, 1),
    Sketcher.Constraint("Coincident", 43, 2, 40, 1),
    Sketcher.Constraint("Coincident", 44, 2, 45, 1),
    Sketcher.Constraint("Coincident", 45, 2, 46, 1),
    Sketcher.Constraint("Coincident", 46, 2, 47, 1),
    Sketcher.Constraint("Coincident", 47, 2, 44, 1),
    Sketcher.Constraint("Coincident", 48, 2, 49, 1),
    Sketcher.Constraint("Coincident", 49, 2, 50, 1),
    Sketcher.Constraint("Coincident", 50, 2, 51, 1),
    Sketcher.Constraint("Coincident", 51, 2, 48, 1),
    Sketcher.Constraint("Coincident", 52, 2, 53, 1),
    Sketcher.Constraint("Coincident", 53, 2, 54, 1),
    Sketcher.Constraint("Coincident", 54, 2, 55, 1),
    Sketcher.Constraint("Coincident", 55, 2, 52, 1),
    Sketcher.Constraint("Coincident", 56, 2, 57, 1),
    Sketcher.Constraint("Coincident", 57, 2, 58, 1),
    Sketcher.Constraint("Coincident", 58, 2, 59, 1),
    Sketcher.Constraint("Coincident", 59, 2, 56, 1),
    Sketcher.Constraint("Coincident", 60, 2, 61, 1),
    Sketcher.Constraint("Coincident", 61, 2, 62, 1),
    Sketcher.Constraint("Coincident", 62, 2, 63, 1),
    Sketcher.Constraint("Coincident", 63, 2, 60, 1),
    Sketcher.Constraint("Coincident", 64, 2, 65, 1),
    Sketcher.Constraint("Coincident", 65, 2, 66, 1),
    Sketcher.Constraint("Coincident", 66, 2, 67, 1),
    Sketcher.Constraint("Coincident", 67, 2, 64, 1),
    Sketcher.Constraint("Coincident", 68, 2, 69, 1),
    Sketcher.Constraint("Coincident", 69, 2, 70, 1),
    Sketcher.Constraint("Coincident", 70, 2, 71, 1),
    Sketcher.Constraint("Coincident", 71, 2, 68, 1),
    Sketcher.Constraint("Coincident", 72, 2, 73, 1),
    Sketcher.Constraint("Coincident", 73, 2, 74, 1),
    Sketcher.Constraint("Coincident", 74, 2, 75, 1),
    Sketcher.Constraint("Coincident", 75, 2, 72, 1),
    Sketcher.Constraint("Coincident", 76, 2, 77, 1),
    Sketcher.Constraint("Coincident", 77, 2, 78, 1),
    Sketcher.Constraint("Coincident", 78, 2, 79, 1),
    Sketcher.Constraint("Coincident", 79, 2, 76, 1),
    Sketcher.Constraint("Horizontal", 0),
    Sketcher.Constraint("Vertical", 1),
    Sketcher.Constraint("Horizontal", 2),
    Sketcher.Constraint("Vertical", 3),
    Sketcher.Constraint("Horizontal", 4),
    Sketcher.Constraint("Vertical", 5),
    Sketcher.Constraint("Horizontal", 6),
    Sketcher.Constraint("Vertical", 7),
    Sketcher.Constraint("Horizontal", 40),
    Sketcher.Constraint("Vertical", 41),
    Sketcher.Constraint("Horizontal", 42),
    Sketcher.Constraint("Vertical", 43),
    Sketcher.Constraint("Horizontal", 44),
    Sketcher.Constraint("Vertical", 45),
    Sketcher.Constraint("Horizontal", 46),
    Sketcher.Constraint("Vertical", 47),
    Sketcher.Constraint("Symmetric", 2, 2, 40, 2, -1, 1),
    Sketcher.Constraint("Symmetric", 0, 2, 42, 2, -1, 1),
    Sketcher.Constraint("Symmetric", 6, 2, 44, 2, -1, 1),
    Sketcher.Constraint("Symmetric", 4, 2, 46, 2, -1, 1),
    Sketcher.Constraint("Symmetric", 8, 2, 48, 2, -1, 1),
    Sketcher.Constraint("Symmetric", 9, 2, 49, 2, -1, 1),
    Sketcher.Constraint("Symmetric", 10, 2, 50, 2, -1, 1),
    Sketcher.Constraint("Symmetric", 11, 2, 51, 2, -1, 1),
    Sketcher.Constraint("Symmetric", 12, 2, 52, 2, -1, 1),
    Sketcher.Constraint("Symmetric", 13, 2, 53, 2, -1, 1),
    Sketcher.Constraint("Symmetric", 14, 2, 54, 2, -1, 1),
    Sketcher.Constraint("Symmetric", 15, 2, 55, 2, -1, 1),
    Sketcher.Constraint("Symmetric", 16, 2, 56, 2, -1, 1),
    Sketcher.Constraint("Symmetric", 17, 2, 57, 2, -1, 1),
    Sketcher.Constraint("Symmetric", 18, 2, 58, 2, -1, 1),
    Sketcher.Constraint("Symmetric", 19, 2, 59, 2, -1, 1),
    Sketcher.Constraint("Symmetric", 20, 2, 60, 2, -1, 1),
    Sketcher.Constraint("Symmetric", 21, 2, 61, 2, -1, 1),
    Sketcher.Constraint("Symmetric", 22, 2, 62, 2, -1, 1),
    Sketcher.Constraint("Symmetric", 23, 2, 63, 2, -1, 1),
    Sketcher.Constraint("Symmetric", 24, 2, 64, 2, -1, 1),
    Sketcher.Constraint("Symmetric", 25, 2, 65, 2, -1, 1),
    Sketcher.Constraint("Symmetric", 26, 2, 66, 2, -1, 1),
    Sketcher.Constraint("Symmetric", 27, 2, 67, 2, -1, 1),
    Sketcher.Constraint("Symmetric", 28, 2, 68, 2, -1, 1),
    Sketcher.Constraint("Symmetric", 29, 2, 69, 2, -1, 1),
    Sketcher.Constraint("Symmetric", 30, 2, 70, 2, -1, 1),
    Sketcher.Constraint("Symmetric", 31, 2, 71, 2, -1, 1),
    Sketcher.Constraint("Symmetric", 32, 2, 72, 2, -1, 1),
    Sketcher.Constraint("Symmetric", 33, 2, 73, 2, -1, 1),
    Sketcher.Constraint("Symmetric", 34, 2, 74, 2, -1, 1),
    Sketcher.Constraint("Symmetric", 35, 2, 75, 2, -1, 1),
    Sketcher.Constraint("Symmetric", 36, 2, 76, 2, -1, 1),
    Sketcher.Constraint("Symmetric", 37, 2, 77, 2, -1, 1),
    Sketcher.Constraint("Symmetric", 38, 2, 78, 2, -1, 1),
    Sketcher.Constraint("Symmetric", 39, 2, 79, 2, -1, 1),
    Sketcher.Constraint("Symmetric", 22, 2, 24, 2, -2),
    Sketcher.Constraint("Symmetric", 21, 2, 25, 2, -2),
    Sketcher.Constraint("Symmetric", 20, 2, 26, 2, -2),
    Sketcher.Constraint("Symmetric", 23, 2, 27, 2, -2),
    Sketcher.Constraint("Symmetric", 18, 2, 28, 2, -2),
    Sketcher.Constraint("Symmetric", 17, 2, 29, 2, -2),
    Sketcher.Constraint("Symmetric", 16, 2, 30, 2, -2),
    Sketcher.Constraint("Symmetric", 19, 2, 31, 2, -2),
    Sketcher.Constraint("Symmetric", 14, 2, 32, 2, -2),
    Sketcher.Constraint("Symmetric", 13, 2, 33, 2, -2),
    Sketcher.Constraint("Symmetric", 12, 2, 34, 2, -2),
    Sketcher.Constraint("Symmetric", 15, 2, 35, 2, -2),
    Sketcher.Constraint("Symmetric", 10, 2, 36, 2, -2),
    Sketcher.Constraint("Symmetric", 9, 2, 37, 2, -2),
    Sketcher.Constraint("Symmetric", 8, 2, 38, 2, -2),
    Sketcher.Constraint("Symmetric", 11, 2, 39, 2, -2),
    Sketcher.Constraint("Symmetric", 7, 2, 40, 2, -2),
    Sketcher.Constraint("Symmetric", 5, 2, 42, 2, -2),
    Sketcher.Constraint("Perpendicular", 8, 9),
    Sketcher.Constraint("Perpendicular", 9, 10),
    Sketcher.Constraint("Perpendicular", 10, 11),
    Sketcher.Constraint("Parallel", 11, 12),
    Sketcher.Constraint("Perpendicular", 12, 13),
    Sketcher.Constraint("Perpendicular", 13, 14),
    Sketcher.Constraint("Perpendicular", 14, 15),
    Sketcher.Constraint("Perpendicular", 16, 17),
    Sketcher.Constraint("Perpendicular", 17, 18),
    Sketcher.Constraint("Perpendicular", 18, 19),
    Sketcher.Constraint("Parallel", 19, 20),
    Sketcher.Constraint("Perpendicular", 20, 21),
    Sketcher.Constraint("Perpendicular", 21, 22),
    Sketcher.Constraint("Perpendicular", 22, 23),
    Sketcher.Constraint("Equal", 11, 12),
    Sketcher.Constraint("Equal", 10, 13),
    Sketcher.Constraint("Equal", 15, 16),
    Sketcher.Constraint("Equal", 14, 17),
    Sketcher.Constraint("Equal", 19, 20),
    Sketcher.Constraint("Equal", 18, 21),
    Sketcher.Constraint("Angle", 8, Q("-54 deg")),
    Sketcher.Constraint("Angle", 16, Q("-18 deg")),
    Sketcher.Constraint("DistanceX", 0, 2, 0, 1, Q("0.128 in")),
    Sketcher.Constraint("DistanceY", 1, 1, 1, 2, Q("0.109 in")),
    Sketcher.Constraint("Distance", 8, Q("0.109 in")),
    Sketcher.Constraint("Distance", 9, Q("0.128 in")),
    Sketcher.Constraint("DistanceX", -1, 1, 0, 2, Q("1.651 in")),
    Sketcher.Constraint("DistanceY", 0, 2, -1, 1, Q("0.5065 in")),
    Sketcher.Constraint("DistanceX", -1, 1, 11, 2, Q("42.491301 mm")),
    Sketcher.Constraint("DistanceY", -1, 1, 14, 2, Q("36.968102 mm")),
    Sketcher.Constraint("DistanceY", -1, 1, 17, 2, Q("35.907401 mm")),
    Sketcher.Constraint("DistanceY", -1, 1, 23, 2, Q("46.095 mm")),
    Sketcher.Constraint("DistanceY", -1, 1, 10, 2, Q("16.48077 mm")),
    Sketcher.Constraint("DistanceX", -1, 1, 14, 2, Q("28.994811 mm")),
    Sketcher.Constraint("DistanceX", -1, 1, 17, 2, Q("25.194188 mm")),
    Sketcher.Constraint("DistanceX", -1, 1, 20, 2, Q("3.356409 mm")),
])
pocket1 = doc.addObject("PartDesign::Pocket", "Pocket")
body.addObject(pocket1)
pocket1.Profile = sketch2
pocket1.Length = Q("0.064 in")
pocket1.Reversed = True

sketch3 = doc.addObject("Sketcher::SketchObject", "Sketch002")
body.addObject(sketch3)
sketch3.AttachmentSupport = (doc.YZ_Plane, [""])
sketch3.MapMode = "FlatFace"
sketch3.AttachmentOffset = App.Placement(V(0, 0, 5), App.Rotation())
sketch3.addGeometry([
    Part.Circle(V(0, -26.7, 0), V(0, 0, 1), 3),
    Part.Circle(V(-23.1, 13.3, 0), V(0, 0, 1), 3),
    Part.Circle(V(23.1, 13.3, 0), V(0, 0, 1), 3),
], False)
sketch3.addConstraint([
    Sketcher.Constraint("Equal", 0, 1),
    Sketcher.Constraint("Equal", 1, 2),
    Sketcher.Constraint("Symmetric", 1, 3, 2, 3, -2),
    Sketcher.Constraint("PointOnObject", 0, 3, -2),
    Sketcher.Constraint("Diameter", 0, Q("0.236 in")),
    Sketcher.Constraint("DistanceY", 0, 3, -1, 1, Q("1.05 in")),
    Sketcher.Constraint("DistanceY", -1, 1, 1, 3, Q("0.525 in")),
    Sketcher.Constraint("DistanceX", 1, 3, -1, 1, Q("23.096898 mm")),
])
pocket2 = doc.addObject("PartDesign::Pocket", "Pocket001")
body.addObject(pocket2)
pocket2.Profile = sketch3
pocket2.Length = Q("0.079 in")

sketch4 = doc.addObject("Sketcher::SketchObject", "Sketch003")
body.addObject(sketch4)
sketch4.AttachmentSupport = (doc.YZ_Plane, [""])
sketch4.MapMode = "FlatFace"
sketch4.AttachmentOffset = App.Placement(V(0, 0, 5), App.Rotation())
sketch4.addGeometry(Part.Circle(V(0, 0, 0), V(0, 0, 1), 6), False)
sketch4.addConstraint([
    Sketcher.Constraint("Coincident", 0, 3, -1, 1),
    Sketcher.Constraint("Diameter", 0, Q("0.441 in")),
])
pocket3 = doc.addObject("PartDesign::Pocket", "Pocket002")
body.addObject(pocket3)
pocket3.Profile = sketch4
pocket3.Length = Q("0.059 in")

doc.recompute()
